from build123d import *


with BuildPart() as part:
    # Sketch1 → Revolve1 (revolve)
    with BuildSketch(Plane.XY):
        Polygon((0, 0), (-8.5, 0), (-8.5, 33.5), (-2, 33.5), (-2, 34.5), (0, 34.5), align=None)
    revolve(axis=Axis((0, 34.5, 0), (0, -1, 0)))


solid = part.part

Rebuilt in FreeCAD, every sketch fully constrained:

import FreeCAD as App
import Part
import Sketcher
from FreeCAD import Vector


def add_polygon(sketch, points):
    """Adds a closed chain of lines whose ends are joined by coincident constraints."""
    first, n = sketch.GeometryCount, len(points)
    for a, b in zip(points, points[1:] + points[:1]):
        sketch.addGeometry(Part.LineSegment(App.Vector(*a, 0), App.Vector(*b, 0)), False)
    for i in range(n):
        sketch.addConstraint(Sketcher.Constraint("Coincident", first + i, 2, first + (i + 1) % n, 1))

doc = App.newDocument("Part")
body = doc.addObject("PartDesign::Body", "Body")

# Sketch on XY plane
sketch1 = body.newObject("Sketcher::SketchObject", "Sketch")
sketch1.AttachmentSupport = (doc.getObject("XY_Plane"), [""])
sketch1.MapMode = "FlatFace"
add_polygon(sketch1, [(-8.5, 0), (0, 0), (0, 34.5), (-2, 34.5), (-2, 33.5), (-8.5, 33.5)])  # lines 0-5
sketch1.addConstraint([
    Sketcher.Constraint("Horizontal", 0),
    Sketcher.Constraint("Vertical", 1),
    Sketcher.Constraint("Horizontal", 2),
    Sketcher.Constraint("Vertical", 3),
    Sketcher.Constraint("Horizontal", 4),
    Sketcher.Constraint("Vertical", 5),
    Sketcher.Constraint("Coincident", 0, 2, -1, 1),
    Sketcher.Constraint("DistanceX", 2, 2, 2, 1, 2.0),
    Sketcher.Constraint("DistanceY", 3, 2, 3, 1, 1.0),
    Sketcher.Constraint("DistanceX", 0, 1, 0, 2, 8.5),
    Sketcher.Constraint("DistanceY", 1, 1, 1, 2, 34.5),
])
revolution = body.newObject("PartDesign::Revolution", "Revolution")
revolution.Profile = sketch1
revolution.ReferenceAxis = (sketch1, ["V_Axis"])
revolution.Angle = 360

doc.recompute()
